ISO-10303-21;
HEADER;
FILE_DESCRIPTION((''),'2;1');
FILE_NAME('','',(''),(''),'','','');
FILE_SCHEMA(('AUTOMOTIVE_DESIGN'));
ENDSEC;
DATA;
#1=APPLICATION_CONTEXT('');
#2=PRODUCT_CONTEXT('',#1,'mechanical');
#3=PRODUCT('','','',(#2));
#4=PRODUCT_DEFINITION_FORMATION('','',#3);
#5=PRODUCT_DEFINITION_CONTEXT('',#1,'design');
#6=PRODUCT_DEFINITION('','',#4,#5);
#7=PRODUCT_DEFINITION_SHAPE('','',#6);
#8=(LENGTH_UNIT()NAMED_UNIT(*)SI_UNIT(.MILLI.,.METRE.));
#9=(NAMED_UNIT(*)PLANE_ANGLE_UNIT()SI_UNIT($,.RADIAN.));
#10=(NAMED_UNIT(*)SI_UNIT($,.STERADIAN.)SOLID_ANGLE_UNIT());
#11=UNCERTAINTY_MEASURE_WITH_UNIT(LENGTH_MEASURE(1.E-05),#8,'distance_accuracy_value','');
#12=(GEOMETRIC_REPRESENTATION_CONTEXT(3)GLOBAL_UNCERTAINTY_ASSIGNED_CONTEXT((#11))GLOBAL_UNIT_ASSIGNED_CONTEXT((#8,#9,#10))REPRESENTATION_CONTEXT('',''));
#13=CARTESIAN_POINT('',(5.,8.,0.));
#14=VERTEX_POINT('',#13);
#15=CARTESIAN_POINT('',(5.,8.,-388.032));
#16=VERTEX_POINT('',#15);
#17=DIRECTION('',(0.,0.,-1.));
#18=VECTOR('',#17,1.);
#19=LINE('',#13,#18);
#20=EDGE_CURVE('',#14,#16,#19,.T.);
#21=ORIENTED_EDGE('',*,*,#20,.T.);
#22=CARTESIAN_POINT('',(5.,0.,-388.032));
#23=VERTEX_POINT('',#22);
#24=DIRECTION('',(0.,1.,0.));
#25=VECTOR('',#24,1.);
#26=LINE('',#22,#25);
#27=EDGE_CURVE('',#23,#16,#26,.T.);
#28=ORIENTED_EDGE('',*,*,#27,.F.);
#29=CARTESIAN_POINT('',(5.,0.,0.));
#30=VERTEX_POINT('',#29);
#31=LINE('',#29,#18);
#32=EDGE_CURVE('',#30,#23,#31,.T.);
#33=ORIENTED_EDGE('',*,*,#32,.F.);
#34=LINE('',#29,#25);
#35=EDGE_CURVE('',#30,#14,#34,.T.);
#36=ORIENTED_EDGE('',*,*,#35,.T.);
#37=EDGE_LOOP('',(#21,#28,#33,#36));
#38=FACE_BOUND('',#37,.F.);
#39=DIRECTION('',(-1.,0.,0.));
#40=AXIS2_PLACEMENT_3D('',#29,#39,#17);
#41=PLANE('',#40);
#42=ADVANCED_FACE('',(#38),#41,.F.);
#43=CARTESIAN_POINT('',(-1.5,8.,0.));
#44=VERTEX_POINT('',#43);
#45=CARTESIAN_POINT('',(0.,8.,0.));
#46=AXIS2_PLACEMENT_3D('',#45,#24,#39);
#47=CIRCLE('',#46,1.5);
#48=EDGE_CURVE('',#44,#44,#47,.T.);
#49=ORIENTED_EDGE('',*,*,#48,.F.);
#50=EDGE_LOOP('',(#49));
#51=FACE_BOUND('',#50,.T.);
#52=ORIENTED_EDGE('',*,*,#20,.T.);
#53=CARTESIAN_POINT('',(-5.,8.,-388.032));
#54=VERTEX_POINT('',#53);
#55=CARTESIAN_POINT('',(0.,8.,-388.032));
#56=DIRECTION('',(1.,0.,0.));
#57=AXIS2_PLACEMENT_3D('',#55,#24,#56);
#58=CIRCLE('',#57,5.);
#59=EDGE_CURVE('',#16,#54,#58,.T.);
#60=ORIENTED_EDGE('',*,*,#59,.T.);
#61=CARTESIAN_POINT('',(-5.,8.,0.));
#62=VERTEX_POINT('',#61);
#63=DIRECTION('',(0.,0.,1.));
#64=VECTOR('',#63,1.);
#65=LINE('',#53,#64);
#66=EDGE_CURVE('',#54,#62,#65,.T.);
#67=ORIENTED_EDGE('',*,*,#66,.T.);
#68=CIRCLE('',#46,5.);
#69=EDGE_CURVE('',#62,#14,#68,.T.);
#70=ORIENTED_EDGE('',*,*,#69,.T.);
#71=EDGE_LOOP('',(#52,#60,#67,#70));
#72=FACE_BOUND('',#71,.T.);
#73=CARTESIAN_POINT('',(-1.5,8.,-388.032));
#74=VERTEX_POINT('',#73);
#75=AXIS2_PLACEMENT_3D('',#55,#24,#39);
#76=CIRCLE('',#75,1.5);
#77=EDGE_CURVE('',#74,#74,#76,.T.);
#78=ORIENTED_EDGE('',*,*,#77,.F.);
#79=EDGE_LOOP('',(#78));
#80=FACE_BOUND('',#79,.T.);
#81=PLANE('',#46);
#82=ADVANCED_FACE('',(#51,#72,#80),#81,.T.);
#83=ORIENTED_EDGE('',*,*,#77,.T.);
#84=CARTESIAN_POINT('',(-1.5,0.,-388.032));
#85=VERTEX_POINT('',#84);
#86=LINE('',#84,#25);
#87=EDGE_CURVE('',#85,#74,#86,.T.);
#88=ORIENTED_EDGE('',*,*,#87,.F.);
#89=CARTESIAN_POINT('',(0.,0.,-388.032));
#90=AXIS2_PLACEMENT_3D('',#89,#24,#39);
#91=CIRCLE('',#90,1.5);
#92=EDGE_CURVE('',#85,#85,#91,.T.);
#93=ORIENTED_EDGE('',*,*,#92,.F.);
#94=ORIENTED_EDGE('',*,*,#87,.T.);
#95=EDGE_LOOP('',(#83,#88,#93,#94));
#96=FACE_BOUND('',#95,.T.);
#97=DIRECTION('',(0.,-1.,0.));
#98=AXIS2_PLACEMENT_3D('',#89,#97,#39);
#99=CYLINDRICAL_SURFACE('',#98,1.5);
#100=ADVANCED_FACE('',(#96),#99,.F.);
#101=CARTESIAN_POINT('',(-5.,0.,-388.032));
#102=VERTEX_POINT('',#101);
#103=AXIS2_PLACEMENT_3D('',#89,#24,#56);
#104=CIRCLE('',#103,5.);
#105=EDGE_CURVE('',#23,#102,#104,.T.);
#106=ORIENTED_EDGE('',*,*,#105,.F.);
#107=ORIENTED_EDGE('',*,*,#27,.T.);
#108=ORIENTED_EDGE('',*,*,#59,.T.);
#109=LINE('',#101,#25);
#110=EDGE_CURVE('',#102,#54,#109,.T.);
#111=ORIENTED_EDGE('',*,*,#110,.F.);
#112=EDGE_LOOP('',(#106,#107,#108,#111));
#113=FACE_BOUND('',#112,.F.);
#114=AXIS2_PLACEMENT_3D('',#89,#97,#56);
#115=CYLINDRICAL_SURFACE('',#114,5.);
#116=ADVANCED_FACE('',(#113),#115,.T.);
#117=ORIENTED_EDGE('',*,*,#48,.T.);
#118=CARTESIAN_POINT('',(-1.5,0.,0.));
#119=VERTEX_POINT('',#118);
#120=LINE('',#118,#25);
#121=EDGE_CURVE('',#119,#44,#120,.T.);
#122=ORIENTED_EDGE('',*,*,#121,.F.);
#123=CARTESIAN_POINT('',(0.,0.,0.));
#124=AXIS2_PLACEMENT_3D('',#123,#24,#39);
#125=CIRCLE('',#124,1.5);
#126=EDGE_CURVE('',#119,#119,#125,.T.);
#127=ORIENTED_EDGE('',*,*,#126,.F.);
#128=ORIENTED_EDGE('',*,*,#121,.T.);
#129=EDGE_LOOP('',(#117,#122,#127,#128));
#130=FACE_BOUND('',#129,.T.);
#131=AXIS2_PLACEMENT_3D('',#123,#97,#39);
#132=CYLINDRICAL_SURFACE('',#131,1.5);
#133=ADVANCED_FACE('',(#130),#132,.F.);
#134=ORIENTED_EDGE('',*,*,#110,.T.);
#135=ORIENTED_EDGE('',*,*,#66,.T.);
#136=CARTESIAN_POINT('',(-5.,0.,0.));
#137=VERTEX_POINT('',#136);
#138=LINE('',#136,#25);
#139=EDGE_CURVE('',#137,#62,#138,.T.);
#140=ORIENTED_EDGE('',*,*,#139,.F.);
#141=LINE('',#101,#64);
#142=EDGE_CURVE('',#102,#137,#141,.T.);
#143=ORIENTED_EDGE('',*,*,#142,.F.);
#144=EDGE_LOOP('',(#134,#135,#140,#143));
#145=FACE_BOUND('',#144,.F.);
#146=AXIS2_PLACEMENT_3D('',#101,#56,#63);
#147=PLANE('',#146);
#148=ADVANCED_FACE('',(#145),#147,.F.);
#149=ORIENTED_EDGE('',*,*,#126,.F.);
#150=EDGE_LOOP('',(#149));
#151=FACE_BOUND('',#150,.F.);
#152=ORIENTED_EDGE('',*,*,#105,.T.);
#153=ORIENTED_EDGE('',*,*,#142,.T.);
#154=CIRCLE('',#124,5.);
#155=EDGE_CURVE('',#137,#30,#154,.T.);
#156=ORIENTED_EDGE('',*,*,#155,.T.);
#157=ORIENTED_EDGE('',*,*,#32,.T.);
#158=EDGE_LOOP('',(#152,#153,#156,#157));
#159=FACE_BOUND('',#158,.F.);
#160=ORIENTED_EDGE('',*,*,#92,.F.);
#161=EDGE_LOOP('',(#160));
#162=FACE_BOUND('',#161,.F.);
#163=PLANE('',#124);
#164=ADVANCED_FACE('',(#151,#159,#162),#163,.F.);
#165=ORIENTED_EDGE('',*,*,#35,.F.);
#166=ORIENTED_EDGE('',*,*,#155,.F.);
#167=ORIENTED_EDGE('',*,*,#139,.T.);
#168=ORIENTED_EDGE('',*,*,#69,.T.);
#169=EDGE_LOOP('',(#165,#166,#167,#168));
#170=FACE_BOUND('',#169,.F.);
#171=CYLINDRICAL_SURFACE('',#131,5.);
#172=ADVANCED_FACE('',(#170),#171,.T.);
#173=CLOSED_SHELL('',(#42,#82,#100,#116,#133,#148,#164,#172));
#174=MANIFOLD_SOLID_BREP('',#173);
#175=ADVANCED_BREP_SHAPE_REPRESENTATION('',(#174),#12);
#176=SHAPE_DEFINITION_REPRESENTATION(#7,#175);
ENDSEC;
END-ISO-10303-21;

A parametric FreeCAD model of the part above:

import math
import FreeCAD as App
import Part
import Sketcher
from FreeCAD import Vector
Q = App.Units.Quantity

doc = App.newDocument("Part")
body = doc.addObject("PartDesign::Body", "Body")

# Sketch on XZ plane
sketch1 = doc.addObject("Sketcher::SketchObject", "Sketch")
body.addObject(sketch1)
sketch1.AttachmentSupport = (doc.XZ_Plane, [""])
sketch1.MapMode = "FlatFace"
sketch1.addGeometry([
    Part.ArcOfCircle(Part.Circle(Vector(0, 0, 0), Vector(0, 0, 1), 5), math.radians(0), math.radians(180)),  # 0
    Part.LineSegment(Vector(5, 0, 0), Vector(5, -388, 0)),  # 1
    Part.ArcOfCircle(Part.Circle(Vector(0, -388, 0), Vector(0, 0, 1), 5), math.radians(180), math.radians(360)),  # 2
    Part.LineSegment(Vector(-5, -388, 0), Vector(-5, 0, 0)),  # 3
    Part.Circle(Vector(0, -388, 0), Vector(0, 0, 1), 1.5),  # 4
    Part.Circle(Vector(0, 0, 0), Vector(0, 0, 1), 1.5),  # 5
], False)
sketch1.addConstraint([
    Sketcher.Constraint("Tangent", 0, 1, 1, 1),
    Sketcher.Constraint("Tangent", 1, 2, 2, 2),
    Sketcher.Constraint("Tangent", 2, 1, 3, 1),
    Sketcher.Constraint("Tangent", 3, 2, 0, 2),
    Sketcher.Constraint("Vertical", 1),
    Sketcher.Constraint("Vertical", 3),
    Sketcher.Constraint("Coincident", 0, 3, -1, 1),
    Sketcher.Constraint("Coincident", 5, 3, -1, 1),
    Sketcher.Constraint("Coincident", 4, 3, 2, 3),
    Sketcher.Constraint("Equal", 4, 5),
    Sketcher.Constraint("Diameter", 4, Q("3 mm")),
    Sketcher.Constraint("Radius", 0, Q("5 mm")),
    Sketcher.Constraint("DistanceY", 1, 2, 1, 1, Q("388.032 mm")),
])
pad1 = doc.addObject("PartDesign::Pad", "Pad")
body.addObject(pad1)
pad1.Profile = sketch1
pad1.Length = 8
pad1.Reversed = True

doc.recompute()
